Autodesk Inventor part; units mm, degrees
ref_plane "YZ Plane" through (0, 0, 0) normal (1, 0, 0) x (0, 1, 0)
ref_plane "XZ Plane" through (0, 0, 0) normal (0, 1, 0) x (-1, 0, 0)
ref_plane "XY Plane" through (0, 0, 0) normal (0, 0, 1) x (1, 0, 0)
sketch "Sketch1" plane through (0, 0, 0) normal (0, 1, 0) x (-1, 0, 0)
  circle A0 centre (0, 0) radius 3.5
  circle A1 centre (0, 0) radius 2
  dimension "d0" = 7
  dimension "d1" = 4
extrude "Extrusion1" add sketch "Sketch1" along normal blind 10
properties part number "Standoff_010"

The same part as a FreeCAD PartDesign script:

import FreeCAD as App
import Part
import Sketcher
Q = App.Units.Quantity

doc = App.newDocument("Part")
body = doc.addObject("PartDesign::Body", "Body")

# Sketch on XZ plane
sketch1 = doc.addObject("Sketcher::SketchObject", "Sketch")
body.addObject(sketch1)
sketch1.AttachmentSupport = (doc.XZ_Plane, [""])
sketch1.MapMode = "FlatFace"
sketch1.addGeometry(Part.Circle(App.Vector(0, 0, 0), App.Vector(0, 0, 1), 3.5), False)
sketch1.addGeometry(Part.Circle(App.Vector(0, 0, 0), App.Vector(0, 0, 1), 2), False)
sketch1.addConstraint(Sketcher.Constraint("Coincident", 0, 3, -1, 1))
sketch1.addConstraint(Sketcher.Constraint("Coincident", 1, 3, -1, 1))
sketch1.addConstraint(Sketcher.Constraint("Diameter", 0, Q("7 mm")))
sketch1.addConstraint(Sketcher.Constraint("Diameter", 1, Q("4 mm")))
pad1 = doc.addObject("PartDesign::Pad", "Pad")
body.addObject(pad1)
pad1.Profile = sketch1
pad1.Length = 10
pad1.Reversed = True

doc.recompute()
